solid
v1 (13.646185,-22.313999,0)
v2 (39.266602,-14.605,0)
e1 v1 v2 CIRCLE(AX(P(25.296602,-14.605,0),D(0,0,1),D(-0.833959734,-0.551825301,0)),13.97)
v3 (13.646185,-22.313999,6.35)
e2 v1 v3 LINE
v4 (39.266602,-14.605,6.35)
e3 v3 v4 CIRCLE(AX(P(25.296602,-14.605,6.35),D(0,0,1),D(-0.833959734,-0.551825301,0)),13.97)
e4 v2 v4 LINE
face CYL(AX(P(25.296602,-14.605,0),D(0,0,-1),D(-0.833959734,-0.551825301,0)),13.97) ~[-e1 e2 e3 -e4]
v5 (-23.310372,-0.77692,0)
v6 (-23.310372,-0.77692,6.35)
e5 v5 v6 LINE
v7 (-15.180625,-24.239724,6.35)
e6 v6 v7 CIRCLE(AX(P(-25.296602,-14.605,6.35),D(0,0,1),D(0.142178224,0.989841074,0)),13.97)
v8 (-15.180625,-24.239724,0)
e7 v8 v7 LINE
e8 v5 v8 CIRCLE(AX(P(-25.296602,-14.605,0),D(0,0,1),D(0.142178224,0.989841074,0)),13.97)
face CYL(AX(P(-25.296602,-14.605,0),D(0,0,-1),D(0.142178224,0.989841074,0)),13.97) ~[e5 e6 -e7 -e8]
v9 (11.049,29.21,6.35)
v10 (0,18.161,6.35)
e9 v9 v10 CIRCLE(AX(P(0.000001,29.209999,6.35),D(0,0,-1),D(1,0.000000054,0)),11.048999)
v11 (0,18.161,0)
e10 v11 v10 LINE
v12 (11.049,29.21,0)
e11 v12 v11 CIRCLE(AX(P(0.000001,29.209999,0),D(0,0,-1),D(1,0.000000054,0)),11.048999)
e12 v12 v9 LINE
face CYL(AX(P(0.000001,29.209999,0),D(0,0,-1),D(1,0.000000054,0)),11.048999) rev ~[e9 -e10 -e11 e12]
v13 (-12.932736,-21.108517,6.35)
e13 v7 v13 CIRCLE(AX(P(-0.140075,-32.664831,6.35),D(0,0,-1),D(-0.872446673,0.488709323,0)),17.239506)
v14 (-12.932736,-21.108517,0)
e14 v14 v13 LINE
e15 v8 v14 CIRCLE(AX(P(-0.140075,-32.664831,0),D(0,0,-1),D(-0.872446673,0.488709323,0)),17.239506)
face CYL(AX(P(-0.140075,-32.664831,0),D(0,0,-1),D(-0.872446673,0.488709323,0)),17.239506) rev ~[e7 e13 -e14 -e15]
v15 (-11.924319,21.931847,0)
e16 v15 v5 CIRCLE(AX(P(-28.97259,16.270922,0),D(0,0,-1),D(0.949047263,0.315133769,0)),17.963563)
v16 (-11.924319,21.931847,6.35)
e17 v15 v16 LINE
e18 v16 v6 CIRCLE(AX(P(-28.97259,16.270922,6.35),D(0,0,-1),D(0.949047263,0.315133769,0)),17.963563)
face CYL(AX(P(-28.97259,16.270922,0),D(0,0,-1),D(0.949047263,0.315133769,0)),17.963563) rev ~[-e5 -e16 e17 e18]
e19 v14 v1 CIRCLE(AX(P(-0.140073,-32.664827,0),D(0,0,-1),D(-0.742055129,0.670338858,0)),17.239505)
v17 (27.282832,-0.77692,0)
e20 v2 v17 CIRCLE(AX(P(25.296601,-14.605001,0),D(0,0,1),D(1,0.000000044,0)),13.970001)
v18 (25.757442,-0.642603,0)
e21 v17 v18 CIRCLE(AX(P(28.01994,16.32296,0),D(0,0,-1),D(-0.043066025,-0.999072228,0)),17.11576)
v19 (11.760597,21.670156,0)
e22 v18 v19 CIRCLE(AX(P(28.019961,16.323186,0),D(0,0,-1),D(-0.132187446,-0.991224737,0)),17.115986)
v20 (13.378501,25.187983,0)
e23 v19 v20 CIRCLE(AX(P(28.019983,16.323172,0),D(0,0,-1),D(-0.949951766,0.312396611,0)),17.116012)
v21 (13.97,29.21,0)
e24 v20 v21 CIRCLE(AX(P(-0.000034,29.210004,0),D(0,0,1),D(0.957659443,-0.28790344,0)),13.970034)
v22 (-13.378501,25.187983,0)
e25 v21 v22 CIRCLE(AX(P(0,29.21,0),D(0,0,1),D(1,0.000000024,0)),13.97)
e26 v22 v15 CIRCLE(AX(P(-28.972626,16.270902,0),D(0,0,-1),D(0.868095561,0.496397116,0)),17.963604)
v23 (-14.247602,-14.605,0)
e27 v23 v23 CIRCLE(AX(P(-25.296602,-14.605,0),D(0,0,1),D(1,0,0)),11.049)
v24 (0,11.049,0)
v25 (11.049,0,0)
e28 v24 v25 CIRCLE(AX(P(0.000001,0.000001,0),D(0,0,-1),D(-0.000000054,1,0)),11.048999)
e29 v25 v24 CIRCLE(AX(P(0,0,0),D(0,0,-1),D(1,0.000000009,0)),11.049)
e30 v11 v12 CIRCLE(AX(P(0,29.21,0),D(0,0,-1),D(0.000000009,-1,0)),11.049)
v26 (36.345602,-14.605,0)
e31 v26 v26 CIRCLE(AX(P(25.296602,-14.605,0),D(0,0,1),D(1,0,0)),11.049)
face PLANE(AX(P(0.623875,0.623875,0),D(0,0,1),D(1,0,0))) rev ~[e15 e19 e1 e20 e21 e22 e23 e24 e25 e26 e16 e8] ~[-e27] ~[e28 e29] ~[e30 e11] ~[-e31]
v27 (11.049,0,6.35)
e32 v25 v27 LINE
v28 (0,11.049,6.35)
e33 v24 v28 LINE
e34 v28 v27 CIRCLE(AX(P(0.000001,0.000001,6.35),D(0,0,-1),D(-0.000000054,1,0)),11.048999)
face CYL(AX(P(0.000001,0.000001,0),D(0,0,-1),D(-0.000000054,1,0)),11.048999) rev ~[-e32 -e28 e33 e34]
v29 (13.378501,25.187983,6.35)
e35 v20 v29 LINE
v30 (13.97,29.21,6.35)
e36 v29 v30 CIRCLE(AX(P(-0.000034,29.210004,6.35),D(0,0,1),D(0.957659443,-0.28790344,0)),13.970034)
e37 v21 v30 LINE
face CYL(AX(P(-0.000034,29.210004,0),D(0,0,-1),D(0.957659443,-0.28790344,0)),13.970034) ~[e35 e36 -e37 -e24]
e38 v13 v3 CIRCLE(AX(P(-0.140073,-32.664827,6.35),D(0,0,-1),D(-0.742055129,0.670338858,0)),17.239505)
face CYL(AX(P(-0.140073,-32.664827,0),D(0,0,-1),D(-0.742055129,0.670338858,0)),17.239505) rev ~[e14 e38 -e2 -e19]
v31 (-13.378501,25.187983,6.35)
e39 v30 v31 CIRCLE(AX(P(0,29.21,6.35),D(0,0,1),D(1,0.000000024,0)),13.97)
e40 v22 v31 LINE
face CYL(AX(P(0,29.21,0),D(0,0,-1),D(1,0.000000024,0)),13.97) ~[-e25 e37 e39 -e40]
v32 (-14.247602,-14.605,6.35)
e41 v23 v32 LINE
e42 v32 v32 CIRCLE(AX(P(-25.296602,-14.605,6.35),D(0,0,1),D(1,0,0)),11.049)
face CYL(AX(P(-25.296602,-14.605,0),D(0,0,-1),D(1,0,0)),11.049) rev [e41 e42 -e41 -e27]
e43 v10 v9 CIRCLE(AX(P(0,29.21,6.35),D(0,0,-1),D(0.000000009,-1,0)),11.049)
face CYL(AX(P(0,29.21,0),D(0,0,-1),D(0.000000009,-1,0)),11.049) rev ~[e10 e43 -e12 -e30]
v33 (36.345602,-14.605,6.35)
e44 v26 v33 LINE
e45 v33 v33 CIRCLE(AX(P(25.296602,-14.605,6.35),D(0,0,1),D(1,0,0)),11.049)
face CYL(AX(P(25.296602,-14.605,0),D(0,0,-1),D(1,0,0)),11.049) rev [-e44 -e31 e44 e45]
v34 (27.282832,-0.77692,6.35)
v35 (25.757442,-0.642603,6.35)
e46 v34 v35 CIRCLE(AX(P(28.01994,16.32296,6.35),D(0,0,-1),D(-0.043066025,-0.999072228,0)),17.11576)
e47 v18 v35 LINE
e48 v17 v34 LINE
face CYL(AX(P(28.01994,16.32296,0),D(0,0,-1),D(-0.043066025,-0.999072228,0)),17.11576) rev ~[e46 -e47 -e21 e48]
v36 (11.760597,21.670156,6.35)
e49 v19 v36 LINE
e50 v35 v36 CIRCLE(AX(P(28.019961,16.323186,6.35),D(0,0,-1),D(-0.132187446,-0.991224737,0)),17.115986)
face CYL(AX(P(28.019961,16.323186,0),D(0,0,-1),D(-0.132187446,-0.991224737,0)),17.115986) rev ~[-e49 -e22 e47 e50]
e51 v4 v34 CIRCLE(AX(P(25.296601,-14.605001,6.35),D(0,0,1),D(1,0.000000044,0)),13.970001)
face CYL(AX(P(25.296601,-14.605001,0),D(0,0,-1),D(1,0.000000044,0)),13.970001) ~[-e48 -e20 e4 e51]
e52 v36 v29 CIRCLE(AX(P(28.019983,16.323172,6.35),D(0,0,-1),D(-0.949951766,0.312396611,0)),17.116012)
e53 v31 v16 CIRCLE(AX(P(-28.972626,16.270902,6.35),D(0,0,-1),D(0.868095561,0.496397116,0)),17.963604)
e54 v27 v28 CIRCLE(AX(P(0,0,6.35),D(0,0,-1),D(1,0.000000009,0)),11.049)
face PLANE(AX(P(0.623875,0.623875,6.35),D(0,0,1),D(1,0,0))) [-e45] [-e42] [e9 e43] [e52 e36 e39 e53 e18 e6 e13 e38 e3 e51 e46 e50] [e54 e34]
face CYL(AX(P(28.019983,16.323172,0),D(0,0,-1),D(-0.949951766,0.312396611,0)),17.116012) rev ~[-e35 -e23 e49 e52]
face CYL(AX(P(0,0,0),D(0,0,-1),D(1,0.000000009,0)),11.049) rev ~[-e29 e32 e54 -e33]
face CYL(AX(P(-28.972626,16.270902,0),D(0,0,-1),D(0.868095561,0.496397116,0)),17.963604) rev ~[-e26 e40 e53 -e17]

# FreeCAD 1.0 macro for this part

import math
import FreeCAD as App
import Part
import Sketcher
from FreeCAD import Vector
Q = App.Units.Quantity

doc = App.newDocument("Part")
params = doc.addObject("Spreadsheet::Sheet", "Params")
for row, (alias, value) in enumerate([
    ("sketch1_radius", "0.55 in"),
    ("sketch1_radius2", "0.5499999 in"),
    ("pad1_length", "0.25 in"),
    ("sketch2_diameter", "0.87 in"),
    ("sketch2_radius", "0.55 in"),
    ("pad2_length", "0.25 in"),
    ("sketch3_diameter", "0.87 in"),
    ("sketch3_radius", "0.55 in"),
    ("pad3_length", "0.25 in"),
    ("sketch4_radius", "0.5499999 in"),
    ("sketch4_radius2", "0.55 in"),
    ("sketch4_radius3", "0.435 in"),
    ("pad4_length", "0.25 in"),
    ("sketch5_radius", "0.55 in"),
    ("sketch5_radius2", "0.435 in"),
    ("pad5_length", "0.25 in"),
], start=1):
    params.set(f"A{row}", alias)
    params.set(f"B{row}", "=" + value)
    params.setAlias(f"B{row}", alias)

body = doc.addObject("PartDesign::Body", "Body")

# Sketch on XY plane
sketch1 = body.newObject("Sketcher::SketchObject", "Sketch")
sketch1.AttachmentSupport = (doc.getObject("XY_Plane"), [""])
sketch1.MapMode = "FlatFace"
sketch1.addGeometry([
    Part.ArcOfCircle(Part.Circle(Vector(0, 29, 0), Vector(0, 0, 1), 14), math.radians(-90), math.radians(-33)),  # 0
    Part.ArcOfCircle(Part.Circle(Vector(0, 29, 0), Vector(0, 0, 1), 14), math.radians(-149), math.radians(-90)),  # 1
    Part.ArcOfCircle(Part.Circle(Vector(-29, 16, 0), Vector(0, 0, 1), 18), math.radians(-72), math.radians(18)),  # 2
    Part.ArcOfCircle(Part.Circle(Vector(-25, -15, 0), Vector(0, 0, 1), 14), math.radians(0), math.radians(82)),  # 3
    Part.ArcOfCircle(Part.Circle(Vector(-25, -15, 0), Vector(0, 0, 1), 14), math.radians(-28), math.radians(0)),  # 4
    Part.ArcOfCircle(Part.Circle(Vector(0, -33, 0), Vector(0, 0, 1), 17), math.radians(37), math.radians(138)),  # 5
    Part.ArcOfCircle(Part.Circle(Vector(25, -15, 0), Vector(0, 0, 1), 14), math.radians(88), math.radians(213)),  # 6
    Part.ArcOfCircle(Part.Circle(Vector(28, 16, 0), Vector(0, 0, 1), 17), math.radians(162), math.radians(262)),  # 7
    Part.ArcOfCircle(Part.Circle(Vector(0, 0, 0), Vector(0, 0, 1), 14), math.radians(0), math.radians(90)),  # 8
    Part.ArcOfCircle(Part.Circle(Vector(0, 0, 0), Vector(0, 0, 1), 14), math.radians(90), math.radians(360)),  # 9
], False)
sketch1.addConstraint([
    Sketcher.Constraint("Tangent", 0, 1, 1, 2),
    Sketcher.Constraint("Coincident", 1, 1, 2, 2),
    Sketcher.Constraint("Coincident", 2, 1, 3, 2),
    Sketcher.Constraint("Tangent", 3, 1, 4, 2),
    Sketcher.Constraint("Coincident", 4, 1, 5, 2),
    Sketcher.Constraint("Coincident", 5, 1, 6, 2),
    Sketcher.Constraint("Coincident", 6, 1, 7, 2),
    Sketcher.Constraint("Coincident", 7, 1, 0, 2),
    Sketcher.Constraint("Tangent", 8, 1, 9, 2),
    Sketcher.Constraint("Coincident", 9, 1, 8, 2),
    Sketcher.Constraint("Coincident", 8, 3, -1, 1),
    Sketcher.Constraint("Equal", 0, 3),
    Sketcher.Constraint("Equal", 3, 4),
    Sketcher.Constraint("Equal", 3, 6),
    Sketcher.Constraint("Equal", 6, 8),
    Sketcher.Constraint("Symmetric", 3, 3, 6, 3, -2),
    Sketcher.Constraint("PointOnObject", 0, 3, -2),
    Sketcher.Constraint("PointOnObject", 0, 1, -2),
    Sketcher.Constraint("PointOnObject", 8, 1, -1),
    Sketcher.Constraint("PointOnObject", 9, 1, -2),
    Sketcher.Constraint("Horizontal", 6, 3, 3, 1),
    Sketcher.Constraint("Radius", 0, Q("0.55 in")),
    Sketcher.Constraint("Radius", 1, Q("0.5499999 in")),
    Sketcher.Constraint("DistanceY", -1, 1, 0, 1, Q("0.6 in")),
    Sketcher.Constraint("DistanceY", 3, 3, -1, 1, Q("0.575 in")),
    Sketcher.Constraint("Radius", 2, 17.963563),
    Sketcher.Constraint("Radius", 5, 17.239505),
    Sketcher.Constraint("Radius", 7, 17.115986),
    Sketcher.Constraint("DistanceX", -1, 1, 6, 3, 25.296601),
    Sketcher.Constraint("DistanceY", 5, 1, -1, 1, 22.313999),
    Sketcher.Constraint("DistanceX", 1, 3, 7, 1, 11.760598),
    Sketcher.Constraint("DistanceX", 2, 3, -1, 1, 28.97259),
    Sketcher.Constraint("DistanceY", -1, 1, 2, 3, 16.270922),
    Sketcher.Constraint("DistanceX", -1, 1, 7, 3, 28.019961),
    Sketcher.Constraint("DistanceX", 3, 3, 5, 3, 25.15653),
])
sketch1.setExpression("Constraints[21]", "Params.sketch1_radius")
sketch1.setExpression("Constraints[22]", "Params.sketch1_radius2")
pad1 = body.newObject("PartDesign::Pad", "Pad")
pad1.Profile = sketch1
pad1.setExpression("Length", "Params.pad1_length")

# Sketch on XY plane
sketch2 = body.newObject("Sketcher::SketchObject", "Sketch001")
sketch2.AttachmentSupport = (doc.getObject("XY_Plane"), [""])
sketch2.MapMode = "FlatFace"
sketch2.addGeometry([
    Part.ArcOfCircle(Part.Circle(Vector(-25.3, -14.6, 0), Vector(0, 0, 1), 14), math.radians(0), math.radians(82)),  # 0
    Part.ArcOfCircle(Part.Circle(Vector(-25.3, -14.6, 0), Vector(0, 0, 1), 14), math.radians(82), math.radians(316)),  # 1
    Part.ArcOfCircle(Part.Circle(Vector(-0.1, -32.7, 0), Vector(0, 0, 1), 17.2), math.radians(137.91), math.radians(150.74)),  # 2
    Part.ArcOfCircle(Part.Circle(Vector(-25.3, -14.6, 0), Vector(0, 0, 1), 14), math.radians(-28), math.radians(0)),  # 3
    Part.Circle(Vector(-25.3, -14.6, 0), Vector(0, 0, 1), 11),  # 4
], False)
sketch2.addConstraint([
    Sketcher.Constraint("Tangent", 0, 2, 1, 1),
    Sketcher.Constraint("Coincident", 1, 2, 2, 2),
    Sketcher.Constraint("Coincident", 2, 1, 3, 1),
    Sketcher.Constraint("Tangent", 3, 2, 0, 1),
    Sketcher.Constraint("Coincident", 4, 3, 0, 3),
    Sketcher.Constraint("Equal", 0, 1),
    Sketcher.Constraint("Equal", 0, 3),
    Sketcher.Constraint("Horizontal", 4, 3, 3, 2),
    Sketcher.Constraint("Diameter", 4, Q("0.87 in")),
    Sketcher.Constraint("Radius", 0, Q("0.55 in")),
    Sketcher.Constraint("DistanceY", 0, 3, -1, 1, Q("0.575 in")),
    Sketcher.Constraint("Radius", 2, 17.239506),
    Sketcher.Constraint("DistanceX", 1, 3, -1, 1, 25.296602),
    Sketcher.Constraint("DistanceY", 2, 3, -1, 1, 32.664831),
    Sketcher.Constraint("DistanceX", 0, 2, -1, 1, 23.310372),
    Sketcher.Constraint("DistanceX", 3, 3, 2, 3, 25.156529),
])
sketch2.setExpression("Constraints[8]", "Params.sketch2_diameter")
sketch2.setExpression("Constraints[9]", "Params.sketch2_radius")
pad2 = body.newObject("PartDesign::Pad", "Pad001")
pad2.Profile = sketch2
pad2.setExpression("Length", "Params.pad2_length")

# Sketch on XY plane
sketch3 = body.newObject("Sketcher::SketchObject", "Sketch002")
sketch3.AttachmentSupport = (doc.getObject("XY_Plane"), [""])
sketch3.MapMode = "FlatFace"
sketch3.addGeometry([
    Part.ArcOfCircle(Part.Circle(Vector(28, 16.3, 0), Vector(0, 0, 1), 17.1), math.radians(-97.6), math.radians(-92.47)),  # 0
    Part.ArcOfCircle(Part.Circle(Vector(25.3, -14.6, 0), Vector(0, 0, 1), 14), math.radians(88), math.radians(213)),  # 1
    Part.ArcOfCircle(Part.Circle(Vector(25.3, -14.6, 0), Vector(0, 0, 1), 14), math.radians(-147), math.radians(0)),  # 2
    Part.ArcOfCircle(Part.Circle(Vector(25.3, -14.6, 0), Vector(0, 0, 1), 14), math.radians(0), math.radians(82)),  # 3
    Part.Circle(Vector(25.3, -14.6, 0), Vector(0, 0, 1), 11),  # 4
], False)
sketch3.addConstraint([
    Sketcher.Constraint("Coincident", 0, 1, 1, 1),
    Sketcher.Constraint("Tangent", 1, 2, 2, 1),
    Sketcher.Constraint("Tangent", 2, 2, 3, 1),
    Sketcher.Constraint("Coincident", 3, 2, 0, 2),
    Sketcher.Constraint("Coincident", 3, 3, 1, 3),
    Sketcher.Constraint("Coincident", 4, 3, 1, 3),
    Sketcher.Constraint("Horizontal", 4, 3, 2, 2),
    Sketcher.Constraint("Diameter", 4, Q("0.87 in")),
    Sketcher.Constraint("Radius", 1, Q("0.55 in")),
    Sketcher.Constraint("DistanceY", 1, 3, -1, 1, Q("0.575 in")),
    Sketcher.Constraint("Radius", 0, 17.11576),
    Sketcher.Constraint("DistanceX", -1, 1, 1, 3, 25.296601),
    Sketcher.Constraint("DistanceY", 1, 2, -1, 1, 22.313999),
    Sketcher.Constraint("DistanceX", -1, 1, 0, 3, 28.01994),
    Sketcher.Constraint("DistanceY", -1, 1, 0, 3, 16.32296),
])
sketch3.setExpression("Constraints[7]", "Params.sketch3_diameter")
sketch3.setExpression("Constraints[8]", "Params.sketch3_radius")
pad3 = body.newObject("PartDesign::Pad", "Pad002")
pad3.Profile = sketch3
pad3.setExpression("Length", "Params.pad3_length")

# Sketch on XY plane
sketch4 = body.newObject("Sketcher::SketchObject", "Sketch003")
sketch4.AttachmentSupport = (doc.getObject("XY_Plane"), [""])
sketch4.MapMode = "FlatFace"
sketch4.addGeometry([
    Part.ArcOfCircle(Part.Circle(Vector(-0.000001, 29.209997, 0), Vector(0, 0, 1), 13.969997), math.radians(-148.601696), math.radians(-89.999994)),  # 0
    Part.ArcOfCircle(Part.Circle(Vector(-0.000001, 29.210001, 0), Vector(0, 0, 1), 13.970001), math.radians(-89.999996), math.radians(-32.664366)),  # 1
    Part.ArcOfCircle(Part.Circle(Vector(28.019983, 16.323172, 0), Vector(0, 0, 1), 17.116012), math.radians(148.80683), math.radians(161.796279)),  # 2
    Part.ArcOfCircle(Part.Circle(Vector(-0.000034, 29.210004, 0), Vector(0, 0, 1), 13.970034), math.radians(-16.73248), math.radians(-0.000015)),  # 3
    Part.ArcOfCircle(Part.Circle(Vector(0, 29.21, 0), Vector(0, 0, 1), 13.97), math.radians(0.000001), math.radians(196.732503)),  # 4
    Part.ArcOfCircle(Part.Circle(Vector(-28.972626, 16.270902, 0), Vector(0, 0, 1), 17.963604), math.radians(18.368913), math.radians(29.76192)),  # 5
    Part.ArcOfCircle(Part.Circle(Vector(0, 29.21, 0), Vector(0, 0, 1), 11.049), math.radians(-0.000001), math.radians(270.000001)),  # 6
    Part.ArcOfCircle(Part.Circle(Vector(0.000001, 29.209999, 0), Vector(0, 0, 1), 11.048999), math.radians(-90.000003), math.radians(0.000003)),  # 7
], False)
sketch4.addConstraint([
    Sketcher.Constraint("Coincident", 0, 2, 1, 1),
    Sketcher.Constraint("Coincident", 1, 2, 2, 2),
    Sketcher.Constraint("Coincident", 2, 1, 3, 1),
    Sketcher.Constraint("Coincident", 3, 2, 4, 1),
    Sketcher.Constraint("Coincident", 4, 2, 5, 2),
    Sketcher.Constraint("Coincident", 5, 1, 0, 1),
    Sketcher.Constraint("Coincident", 6, 1, 7, 2),
    Sketcher.Constraint("Coincident", 7, 1, 6, 2),
    Sketcher.Constraint("Coincident", 1, 3, 0, 3),
    Sketcher.Constraint("Coincident", 4, 3, 0, 3),
    Sketcher.Constraint("Coincident", 6, 3, 0, 3),
    Sketcher.Constraint("PointOnObject", 0, 3, -2),
    Sketcher.Constraint("PointOnObject", 7, 3, -2),
    Sketcher.Constraint("PointOnObject", 0, 2, -2),
    Sketcher.Constraint("PointOnObject", 7, 1, -2),
    Sketcher.Constraint("Radius", 0, Q("0.5499999 in")),
    Sketcher.Constraint("Radius", 4, Q("0.55 in")),
    Sketcher.Constraint("Radius", 6, Q("0.435 in")),
    Sketcher.Constraint("DistanceY", -1, 1, 0, 2, Q("0.6 in")),
    Sketcher.Constraint("DistanceY", -1, 1, 3, 3, Q("1.1500001 in")),
    Sketcher.Constraint("DistanceY", -1, 1, 3, 2, Q("1.15 in")),
    Sketcher.Constraint("DistanceY", -1, 1, 6, 1, Q("1.15 in")),
    Sketcher.Constraint("Radius", 2, 17.116012),
    Sketcher.Constraint("Radius", 3, 13.970034),
    Sketcher.Constraint("Radius", 5, 17.963604),
    Sketcher.Constraint("DistanceY", -1, 1, 5, 3, 16.270902),
    Sketcher.Constraint("DistanceX", -1, 1, 2, 1, 13.378501),
    Sketcher.Constraint("DistanceX", 4, 2, -1, 1, 13.378501),
    Sketcher.Constraint("DistanceX", 0, 3, 1, 2, 11.760598),
])
sketch4.setExpression("Constraints[15]", "Params.sketch4_radius")
sketch4.setExpression("Constraints[16]", "Params.sketch4_radius2")
sketch4.setExpression("Constraints[17]", "Params.sketch4_radius3")
pad4 = body.newObject("PartDesign::Pad", "Pad003")
pad4.Profile = sketch4
pad4.setExpression("Length", "Params.pad4_length")

# Sketch on XY plane
sketch5 = body.newObject("Sketcher::SketchObject", "Sketch004")
sketch5.AttachmentSupport = (doc.getObject("XY_Plane"), [""])
sketch5.MapMode = "FlatFace"
sketch5.addGeometry([
    Part.ArcOfCircle(Part.Circle(Vector(0, 0, 0), Vector(0, 0, 1), 14), math.radians(0), math.radians(90)),
    Part.ArcOfCircle(Part.Circle(Vector(0, 0, 0), Vector(0, 0, 1), 14), math.radians(90), math.radians(360)),
    Part.ArcOfCircle(Part.Circle(Vector(0, 0, 0), Vector(0, 0, 1), 11), math.radians(90), math.radians(360)),
    Part.ArcOfCircle(Part.Circle(Vector(0, 0, 0), Vector(0, 0, 1), 11), math.radians(0), math.radians(90)),
], False)
sketch5.addConstraint([
    Sketcher.Constraint("Tangent", 0, 1, 1, 2),
    Sketcher.Constraint("Coincident", 1, 1, 0, 2),
    Sketcher.Constraint("Tangent", 2, 1, 3, 2),
    Sketcher.Constraint("Coincident", 3, 1, 2, 2),
    Sketcher.Constraint("Coincident", 0, 3, -1, 1),
    Sketcher.Constraint("Coincident", 2, 3, -1, 1),
    Sketcher.Constraint("PointOnObject", 0, 1, -1),
    Sketcher.Constraint("PointOnObject", 1, 1, -2),
    Sketcher.Constraint("PointOnObject", 2, 1, -2),
    Sketcher.Constraint("PointOnObject", 3, 1, -1),
    Sketcher.Constraint("Radius", 0, Q("0.55 in")),
    Sketcher.Constraint("Radius", 2, Q("0.435 in")),
])
sketch5.setExpression("Constraints[10]", "Params.sketch5_radius")
sketch5.setExpression("Constraints[11]", "Params.sketch5_radius2")
pad5 = body.newObject("PartDesign::Pad", "Pad004")
pad5.Profile = sketch5
pad5.setExpression("Length", "Params.pad5_length")

doc.recompute()
